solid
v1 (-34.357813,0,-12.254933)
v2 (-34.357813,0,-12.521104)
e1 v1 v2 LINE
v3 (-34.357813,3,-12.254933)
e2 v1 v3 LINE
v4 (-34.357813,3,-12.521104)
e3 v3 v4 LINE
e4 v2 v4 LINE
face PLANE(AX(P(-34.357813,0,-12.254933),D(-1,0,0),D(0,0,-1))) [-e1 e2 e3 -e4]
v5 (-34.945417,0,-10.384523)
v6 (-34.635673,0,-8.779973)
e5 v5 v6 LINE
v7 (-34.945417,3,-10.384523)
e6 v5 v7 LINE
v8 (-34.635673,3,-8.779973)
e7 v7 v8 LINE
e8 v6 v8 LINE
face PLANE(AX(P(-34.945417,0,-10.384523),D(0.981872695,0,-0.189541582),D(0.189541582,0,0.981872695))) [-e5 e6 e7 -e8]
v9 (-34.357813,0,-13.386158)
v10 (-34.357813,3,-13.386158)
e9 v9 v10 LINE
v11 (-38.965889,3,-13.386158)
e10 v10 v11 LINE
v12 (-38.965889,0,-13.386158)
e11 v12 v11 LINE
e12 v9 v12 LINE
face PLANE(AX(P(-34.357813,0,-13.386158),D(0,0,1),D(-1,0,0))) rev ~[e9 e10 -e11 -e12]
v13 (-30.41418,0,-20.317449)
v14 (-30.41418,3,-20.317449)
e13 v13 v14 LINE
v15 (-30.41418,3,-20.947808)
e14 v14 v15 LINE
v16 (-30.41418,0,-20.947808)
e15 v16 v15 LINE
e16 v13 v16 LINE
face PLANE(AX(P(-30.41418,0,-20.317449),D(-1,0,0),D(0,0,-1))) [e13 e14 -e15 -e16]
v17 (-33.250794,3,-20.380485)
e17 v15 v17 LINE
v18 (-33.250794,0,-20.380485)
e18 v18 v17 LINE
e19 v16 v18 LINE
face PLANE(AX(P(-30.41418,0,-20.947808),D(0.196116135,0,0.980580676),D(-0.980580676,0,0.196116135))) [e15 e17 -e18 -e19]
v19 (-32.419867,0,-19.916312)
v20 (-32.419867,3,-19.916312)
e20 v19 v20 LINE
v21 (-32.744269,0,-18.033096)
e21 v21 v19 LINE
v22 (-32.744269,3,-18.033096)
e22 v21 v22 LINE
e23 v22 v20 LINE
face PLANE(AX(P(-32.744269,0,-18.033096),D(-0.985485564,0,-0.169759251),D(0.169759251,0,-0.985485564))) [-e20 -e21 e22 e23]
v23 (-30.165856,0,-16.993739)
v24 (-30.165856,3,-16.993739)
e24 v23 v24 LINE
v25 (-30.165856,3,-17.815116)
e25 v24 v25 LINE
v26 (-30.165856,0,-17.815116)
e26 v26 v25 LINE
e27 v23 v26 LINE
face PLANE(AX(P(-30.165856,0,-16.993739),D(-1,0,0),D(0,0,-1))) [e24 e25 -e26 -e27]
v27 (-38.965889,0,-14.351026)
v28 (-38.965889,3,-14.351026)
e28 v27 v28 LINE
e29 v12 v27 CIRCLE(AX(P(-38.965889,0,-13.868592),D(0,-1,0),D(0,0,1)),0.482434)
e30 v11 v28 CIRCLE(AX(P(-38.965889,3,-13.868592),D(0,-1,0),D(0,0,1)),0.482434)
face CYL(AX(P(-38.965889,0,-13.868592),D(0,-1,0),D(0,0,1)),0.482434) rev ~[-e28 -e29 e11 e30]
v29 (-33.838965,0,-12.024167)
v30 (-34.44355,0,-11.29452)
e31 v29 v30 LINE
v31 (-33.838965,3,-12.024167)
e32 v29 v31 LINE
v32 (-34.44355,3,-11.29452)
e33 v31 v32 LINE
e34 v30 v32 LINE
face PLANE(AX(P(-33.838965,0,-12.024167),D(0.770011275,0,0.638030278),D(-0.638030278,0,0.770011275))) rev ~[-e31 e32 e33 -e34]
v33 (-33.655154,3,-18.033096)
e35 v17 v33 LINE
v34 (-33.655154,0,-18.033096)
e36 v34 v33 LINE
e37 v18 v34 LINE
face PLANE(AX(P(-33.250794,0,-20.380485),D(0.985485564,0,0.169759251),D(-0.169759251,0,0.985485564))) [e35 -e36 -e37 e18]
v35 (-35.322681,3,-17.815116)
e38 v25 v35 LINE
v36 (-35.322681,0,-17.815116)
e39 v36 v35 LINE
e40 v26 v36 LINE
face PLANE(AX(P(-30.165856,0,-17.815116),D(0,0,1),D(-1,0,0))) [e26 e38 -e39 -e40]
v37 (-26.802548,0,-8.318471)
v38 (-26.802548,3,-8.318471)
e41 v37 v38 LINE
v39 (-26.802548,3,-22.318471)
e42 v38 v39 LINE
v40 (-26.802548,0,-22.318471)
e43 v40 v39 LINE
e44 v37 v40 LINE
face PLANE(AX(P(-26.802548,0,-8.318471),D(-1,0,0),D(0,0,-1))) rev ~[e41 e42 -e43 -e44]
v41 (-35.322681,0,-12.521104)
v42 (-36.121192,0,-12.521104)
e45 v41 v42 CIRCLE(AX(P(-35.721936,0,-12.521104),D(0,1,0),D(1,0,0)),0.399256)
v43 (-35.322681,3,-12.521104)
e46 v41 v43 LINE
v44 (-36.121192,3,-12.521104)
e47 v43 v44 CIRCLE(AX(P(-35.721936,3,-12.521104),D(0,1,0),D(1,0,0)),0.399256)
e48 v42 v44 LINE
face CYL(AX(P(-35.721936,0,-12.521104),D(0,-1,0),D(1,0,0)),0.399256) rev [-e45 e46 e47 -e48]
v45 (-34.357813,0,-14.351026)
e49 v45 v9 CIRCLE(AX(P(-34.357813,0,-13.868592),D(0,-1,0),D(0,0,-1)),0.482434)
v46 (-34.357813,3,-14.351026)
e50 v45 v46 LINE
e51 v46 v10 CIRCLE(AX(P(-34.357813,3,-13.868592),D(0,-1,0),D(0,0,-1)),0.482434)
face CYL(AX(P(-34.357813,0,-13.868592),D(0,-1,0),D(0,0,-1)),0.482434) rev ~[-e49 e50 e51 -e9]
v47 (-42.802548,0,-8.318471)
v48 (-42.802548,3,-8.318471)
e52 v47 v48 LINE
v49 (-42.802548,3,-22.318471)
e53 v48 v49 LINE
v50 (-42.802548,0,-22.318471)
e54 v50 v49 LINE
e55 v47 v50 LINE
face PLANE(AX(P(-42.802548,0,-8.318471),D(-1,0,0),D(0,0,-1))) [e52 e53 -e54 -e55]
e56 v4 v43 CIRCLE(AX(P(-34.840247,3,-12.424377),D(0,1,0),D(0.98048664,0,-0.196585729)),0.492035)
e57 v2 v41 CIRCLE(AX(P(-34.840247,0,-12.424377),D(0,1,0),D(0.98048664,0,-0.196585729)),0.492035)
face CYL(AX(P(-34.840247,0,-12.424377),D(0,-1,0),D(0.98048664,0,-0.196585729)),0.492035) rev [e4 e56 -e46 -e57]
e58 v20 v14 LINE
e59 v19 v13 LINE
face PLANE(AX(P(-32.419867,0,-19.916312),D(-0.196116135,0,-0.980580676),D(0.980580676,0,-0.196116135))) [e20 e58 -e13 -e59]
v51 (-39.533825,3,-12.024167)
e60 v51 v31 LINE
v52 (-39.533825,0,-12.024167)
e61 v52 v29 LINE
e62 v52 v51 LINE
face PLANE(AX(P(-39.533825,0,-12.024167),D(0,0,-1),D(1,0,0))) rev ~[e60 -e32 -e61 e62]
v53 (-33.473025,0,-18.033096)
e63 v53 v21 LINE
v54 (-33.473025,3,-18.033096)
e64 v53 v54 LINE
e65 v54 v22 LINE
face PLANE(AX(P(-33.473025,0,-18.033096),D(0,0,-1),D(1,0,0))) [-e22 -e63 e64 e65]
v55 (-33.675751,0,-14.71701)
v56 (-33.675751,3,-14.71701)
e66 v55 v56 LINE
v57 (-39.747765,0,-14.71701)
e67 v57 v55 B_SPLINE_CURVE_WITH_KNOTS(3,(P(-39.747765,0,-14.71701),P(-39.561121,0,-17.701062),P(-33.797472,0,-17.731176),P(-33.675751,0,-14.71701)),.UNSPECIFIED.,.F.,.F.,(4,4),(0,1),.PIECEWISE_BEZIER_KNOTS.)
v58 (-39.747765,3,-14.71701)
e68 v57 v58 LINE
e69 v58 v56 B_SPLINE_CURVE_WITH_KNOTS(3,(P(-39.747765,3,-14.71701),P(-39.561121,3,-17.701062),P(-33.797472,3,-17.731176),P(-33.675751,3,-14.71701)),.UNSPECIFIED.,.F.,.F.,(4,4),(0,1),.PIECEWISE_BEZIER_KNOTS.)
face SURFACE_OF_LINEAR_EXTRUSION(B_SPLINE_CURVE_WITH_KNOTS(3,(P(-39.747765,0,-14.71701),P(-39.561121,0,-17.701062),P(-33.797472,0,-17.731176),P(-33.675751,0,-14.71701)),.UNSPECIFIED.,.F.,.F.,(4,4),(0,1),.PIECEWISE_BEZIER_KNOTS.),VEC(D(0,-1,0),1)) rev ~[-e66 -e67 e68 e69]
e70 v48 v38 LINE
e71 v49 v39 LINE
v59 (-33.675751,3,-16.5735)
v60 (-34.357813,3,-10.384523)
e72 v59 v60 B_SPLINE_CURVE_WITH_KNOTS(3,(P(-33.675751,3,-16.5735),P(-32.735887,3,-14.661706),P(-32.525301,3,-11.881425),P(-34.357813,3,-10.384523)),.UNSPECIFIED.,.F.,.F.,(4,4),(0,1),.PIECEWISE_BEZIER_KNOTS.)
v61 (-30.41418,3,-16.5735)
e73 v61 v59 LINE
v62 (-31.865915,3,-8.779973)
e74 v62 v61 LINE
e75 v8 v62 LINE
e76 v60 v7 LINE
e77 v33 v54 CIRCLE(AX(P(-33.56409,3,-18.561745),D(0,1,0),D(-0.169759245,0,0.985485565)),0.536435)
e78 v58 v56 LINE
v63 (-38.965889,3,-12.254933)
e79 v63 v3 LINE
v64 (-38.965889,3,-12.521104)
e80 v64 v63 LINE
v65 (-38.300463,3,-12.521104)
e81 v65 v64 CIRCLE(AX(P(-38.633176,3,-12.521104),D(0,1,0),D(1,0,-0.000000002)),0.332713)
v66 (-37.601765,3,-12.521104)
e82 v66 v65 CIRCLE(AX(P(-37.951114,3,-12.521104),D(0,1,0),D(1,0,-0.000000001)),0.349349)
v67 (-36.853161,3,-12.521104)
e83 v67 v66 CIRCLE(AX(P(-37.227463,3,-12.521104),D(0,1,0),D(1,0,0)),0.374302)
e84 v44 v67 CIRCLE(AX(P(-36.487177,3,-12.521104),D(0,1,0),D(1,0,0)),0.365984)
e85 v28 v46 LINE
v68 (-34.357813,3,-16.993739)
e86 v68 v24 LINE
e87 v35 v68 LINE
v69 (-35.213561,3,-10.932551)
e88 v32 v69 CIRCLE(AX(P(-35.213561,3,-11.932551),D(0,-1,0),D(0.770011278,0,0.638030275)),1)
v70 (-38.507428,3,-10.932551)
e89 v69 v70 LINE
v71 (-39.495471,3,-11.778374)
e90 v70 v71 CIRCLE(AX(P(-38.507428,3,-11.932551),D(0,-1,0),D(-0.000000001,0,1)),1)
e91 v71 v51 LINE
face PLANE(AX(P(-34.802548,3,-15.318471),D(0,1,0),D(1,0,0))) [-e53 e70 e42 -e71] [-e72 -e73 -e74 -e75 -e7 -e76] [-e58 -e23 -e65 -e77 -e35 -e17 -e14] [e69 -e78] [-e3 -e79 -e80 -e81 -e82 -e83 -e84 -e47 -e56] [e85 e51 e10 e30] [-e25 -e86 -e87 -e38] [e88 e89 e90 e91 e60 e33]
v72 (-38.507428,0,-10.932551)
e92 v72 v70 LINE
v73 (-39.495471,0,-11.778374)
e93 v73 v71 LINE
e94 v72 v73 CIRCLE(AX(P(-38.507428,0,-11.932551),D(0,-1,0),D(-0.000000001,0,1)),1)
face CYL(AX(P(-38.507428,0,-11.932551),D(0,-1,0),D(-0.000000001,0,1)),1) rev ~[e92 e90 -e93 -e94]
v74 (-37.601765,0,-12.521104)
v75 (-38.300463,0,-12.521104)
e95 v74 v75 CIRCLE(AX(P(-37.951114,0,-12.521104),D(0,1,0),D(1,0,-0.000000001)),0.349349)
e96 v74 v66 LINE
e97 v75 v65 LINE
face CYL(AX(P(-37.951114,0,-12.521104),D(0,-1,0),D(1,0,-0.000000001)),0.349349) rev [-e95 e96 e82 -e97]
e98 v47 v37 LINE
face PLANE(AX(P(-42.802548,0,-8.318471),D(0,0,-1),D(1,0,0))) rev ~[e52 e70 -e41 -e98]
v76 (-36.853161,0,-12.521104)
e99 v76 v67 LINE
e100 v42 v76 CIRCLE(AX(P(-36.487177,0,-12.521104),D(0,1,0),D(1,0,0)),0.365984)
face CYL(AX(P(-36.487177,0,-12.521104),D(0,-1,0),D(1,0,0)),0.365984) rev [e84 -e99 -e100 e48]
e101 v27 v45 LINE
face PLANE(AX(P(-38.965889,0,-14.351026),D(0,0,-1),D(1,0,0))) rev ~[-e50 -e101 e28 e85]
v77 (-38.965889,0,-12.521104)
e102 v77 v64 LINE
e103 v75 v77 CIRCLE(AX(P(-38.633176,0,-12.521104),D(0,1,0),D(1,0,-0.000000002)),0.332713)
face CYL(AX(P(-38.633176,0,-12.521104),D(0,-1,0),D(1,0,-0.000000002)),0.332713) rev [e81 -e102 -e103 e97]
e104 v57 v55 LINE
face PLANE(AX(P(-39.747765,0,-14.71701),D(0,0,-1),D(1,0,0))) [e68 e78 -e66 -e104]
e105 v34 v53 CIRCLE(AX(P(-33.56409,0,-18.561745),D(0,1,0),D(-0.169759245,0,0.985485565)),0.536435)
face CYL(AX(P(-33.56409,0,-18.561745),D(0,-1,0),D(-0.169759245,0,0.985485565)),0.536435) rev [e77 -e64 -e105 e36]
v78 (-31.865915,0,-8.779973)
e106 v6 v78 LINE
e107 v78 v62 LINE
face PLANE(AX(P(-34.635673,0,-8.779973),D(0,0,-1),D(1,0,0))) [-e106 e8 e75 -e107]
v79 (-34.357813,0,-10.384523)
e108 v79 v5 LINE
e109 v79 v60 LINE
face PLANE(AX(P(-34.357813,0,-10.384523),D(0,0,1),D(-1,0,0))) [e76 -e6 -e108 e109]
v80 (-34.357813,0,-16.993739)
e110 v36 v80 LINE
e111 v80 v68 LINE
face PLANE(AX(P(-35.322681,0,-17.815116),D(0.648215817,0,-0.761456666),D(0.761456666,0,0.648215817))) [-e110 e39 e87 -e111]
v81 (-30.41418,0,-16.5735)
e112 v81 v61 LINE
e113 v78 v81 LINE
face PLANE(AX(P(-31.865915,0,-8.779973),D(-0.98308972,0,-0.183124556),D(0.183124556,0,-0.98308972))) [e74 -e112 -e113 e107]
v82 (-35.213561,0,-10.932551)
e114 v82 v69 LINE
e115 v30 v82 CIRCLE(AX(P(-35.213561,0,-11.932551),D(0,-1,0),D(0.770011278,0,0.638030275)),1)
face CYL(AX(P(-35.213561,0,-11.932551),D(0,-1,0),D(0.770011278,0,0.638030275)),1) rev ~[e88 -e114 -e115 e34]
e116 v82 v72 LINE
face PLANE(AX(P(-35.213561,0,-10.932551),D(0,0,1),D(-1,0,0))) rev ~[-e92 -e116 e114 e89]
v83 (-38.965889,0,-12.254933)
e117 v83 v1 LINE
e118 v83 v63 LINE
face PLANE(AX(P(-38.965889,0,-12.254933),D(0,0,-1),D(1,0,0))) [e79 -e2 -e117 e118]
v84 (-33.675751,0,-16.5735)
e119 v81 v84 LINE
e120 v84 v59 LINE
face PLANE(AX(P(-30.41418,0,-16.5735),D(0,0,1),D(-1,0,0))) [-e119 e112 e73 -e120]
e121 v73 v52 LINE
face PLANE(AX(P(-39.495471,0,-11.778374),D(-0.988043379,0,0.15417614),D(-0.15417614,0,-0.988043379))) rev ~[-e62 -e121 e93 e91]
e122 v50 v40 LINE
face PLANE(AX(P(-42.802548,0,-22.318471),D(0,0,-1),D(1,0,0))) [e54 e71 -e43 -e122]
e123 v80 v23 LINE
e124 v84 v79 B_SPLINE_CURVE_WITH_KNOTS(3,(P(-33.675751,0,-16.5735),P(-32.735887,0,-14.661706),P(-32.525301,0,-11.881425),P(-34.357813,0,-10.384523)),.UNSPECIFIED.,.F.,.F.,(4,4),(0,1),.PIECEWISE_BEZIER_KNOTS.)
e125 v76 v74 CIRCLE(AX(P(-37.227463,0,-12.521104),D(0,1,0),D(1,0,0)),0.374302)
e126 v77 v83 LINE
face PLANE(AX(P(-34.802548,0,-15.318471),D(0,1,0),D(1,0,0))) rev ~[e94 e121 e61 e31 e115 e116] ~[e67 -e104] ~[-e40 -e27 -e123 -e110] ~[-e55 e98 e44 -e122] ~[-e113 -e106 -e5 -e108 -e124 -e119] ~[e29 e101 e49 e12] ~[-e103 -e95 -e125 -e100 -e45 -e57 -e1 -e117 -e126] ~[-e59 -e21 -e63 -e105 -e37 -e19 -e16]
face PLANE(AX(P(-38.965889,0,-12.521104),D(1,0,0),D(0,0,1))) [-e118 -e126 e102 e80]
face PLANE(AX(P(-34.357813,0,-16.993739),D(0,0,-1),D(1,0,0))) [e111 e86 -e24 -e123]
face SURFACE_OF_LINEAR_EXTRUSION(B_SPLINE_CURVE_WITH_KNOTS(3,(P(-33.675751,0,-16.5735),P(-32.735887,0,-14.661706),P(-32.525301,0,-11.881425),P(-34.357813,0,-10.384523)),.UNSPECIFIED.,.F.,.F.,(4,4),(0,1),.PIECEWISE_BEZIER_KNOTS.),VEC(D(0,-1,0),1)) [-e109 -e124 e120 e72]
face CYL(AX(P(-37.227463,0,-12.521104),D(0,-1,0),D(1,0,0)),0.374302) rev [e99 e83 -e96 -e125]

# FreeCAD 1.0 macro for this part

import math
import FreeCAD as App
import Part
import Sketcher
from FreeCAD import Vector
Q = App.Units.Quantity

doc = App.newDocument("Part")
body = doc.addObject("PartDesign::Body", "Body")

# Sketch on XZ plane
sketch1 = doc.addObject("Sketcher::SketchObject", "Sketch")
body.addObject(sketch1)
sketch1.AttachmentSupport = (doc.XZ_Plane, [""])
sketch1.MapMode = "FlatFace"
sketch1.addGeometry([
    Part.LineSegment(Vector(-42.802548, -22.318471, 0), Vector(-42.802548, -8.318471, 0)),  # 0
    Part.LineSegment(Vector(-42.802548, -8.318471, 0), Vector(-26.802548, -8.318471, 0)),  # 1
    Part.LineSegment(Vector(-26.802548, -8.318471, 0), Vector(-26.802548, -22.318471, 0)),  # 2
    Part.LineSegment(Vector(-26.802548, -22.318471, 0), Vector(-42.802548, -22.318471, 0)),  # 3
    Part.LineSegment(Vector(-39.495471, -11.778374, 0), Vector(-39.533825, -12.024167, 0)),  # 4
    Part.LineSegment(Vector(-39.533825, -12.024167, 0), Vector(-33.838965, -12.024167, 0)),  # 5
    Part.LineSegment(Vector(-33.838965, -12.024167, 0), Vector(-34.44355, -11.29452, 0)),  # 6
    Part.ArcOfCircle(Part.Circle(Vector(-35.213561, -11.932551, 0), Vector(0, 0, 1), 1), math.radians(39.645098), math.radians(90)),  # 7
    Part.LineSegment(Vector(-35.213561, -10.932551, 0), Vector(-38.507428, -10.932551, 0)),  # 8
    Part.ArcOfCircle(Part.Circle(Vector(-38.507428, -11.932551, 0), Vector(0, 0, 1), 1), math.radians(90), math.radians(171.130982)),  # 9
    Part.LineSegment(Vector(-38.965889, -12.254933, 0), Vector(-38.965889, -12.521104, 0)),  # 10
    Part.ArcOfCircle(Part.Circle(Vector(-38.633176, -12.521104, 0), Vector(0, 0, 1), 0.332713), math.radians(-180), math.radians(0)),  # 11
    Part.ArcOfCircle(Part.Circle(Vector(-37.951114, -12.521104, 0), Vector(0, 0, 1), 0.349349), math.radians(180), math.radians(360)),  # 12
    Part.ArcOfCircle(Part.Circle(Vector(-37.227463, -12.521104, 0), Vector(0, 0, 1), 0.374302), math.radians(180), math.radians(360)),  # 13
    Part.ArcOfCircle(Part.Circle(Vector(-36.487177, -12.521104, 0), Vector(0, 0, 1), 0.365984), math.radians(180), math.radians(360)),  # 14
    Part.ArcOfCircle(Part.Circle(Vector(-35.721936, -12.521104, 0), Vector(0, 0, 1), 0.399256), math.radians(180), math.radians(360)),  # 15
    Part.ArcOfCircle(Part.Circle(Vector(-34.840247, -12.424377, 0), Vector(0, 0, 1), 0.492035), math.radians(-168.662628), math.radians(-11.337372)),  # 16
    Part.LineSegment(Vector(-34.357813, -12.521104, 0), Vector(-34.357813, -12.254933, 0)),  # 17
    Part.LineSegment(Vector(-34.357813, -12.254933, 0), Vector(-38.965889, -12.254933, 0)),  # 18
    Part.ArcOfCircle(Part.Circle(Vector(-38.965889, -13.868592, 0), Vector(0, 0, 1), 0.482434), math.radians(90), math.radians(270)),  # 19
    Part.LineSegment(Vector(-38.965889, -14.351026, 0), Vector(-34.357813, -14.351026, 0)),  # 20
    Part.ArcOfCircle(Part.Circle(Vector(-34.357813, -13.868592, 0), Vector(0, 0, 1), 0.482434), math.radians(-90), math.radians(90)),  # 21
    Part.LineSegment(Vector(-34.357813, -13.386158, 0), Vector(-38.965889, -13.386158, 0)),  # 22
    Part.LineSegment(Vector(-34.635673, -8.779973, 0), Vector(-34.945417, -10.384523, 0)),  # 23
    Part.LineSegment(Vector(-34.945417, -10.384523, 0), Vector(-34.357813, -10.384523, 0)),  # 24
    Part.BSplineCurve([Vector(-33.675751, -16.5735, 0), Vector(-32.735887, -14.661706, 0), Vector(-32.525301, -11.881425, 0), Vector(-34.357813, -10.384523, 0)], [4, 4], [0, 1], False, 3, [1, 1, 1, 1], False),  # 25
    Part.LineSegment(Vector(-33.675751, -16.5735, 0), Vector(-30.41418, -16.5735, 0)),  # 26
    Part.LineSegment(Vector(-30.41418, -16.5735, 0), Vector(-31.865915, -8.779973, 0)),  # 27
    Part.LineSegment(Vector(-31.865915, -8.779973, 0), Vector(-34.635673, -8.779973, 0)),  # 28
    Part.LineSegment(Vector(-33.675751, -14.71701, 0), Vector(-39.747765, -14.71701, 0)),  # 29
    Part.BSplineCurve([Vector(-39.747765, -14.71701, 0), Vector(-39.561121, -17.701062, 0), Vector(-33.797472, -17.731176, 0), Vector(-33.675751, -14.71701, 0)], [4, 4], [0, 1], False, 3, [1, 1, 1, 1], False),  # 30
    Part.LineSegment(Vector(-30.165856, -16.993739, 0), Vector(-34.357813, -16.993739, 0)),  # 31
    Part.LineSegment(Vector(-34.357813, -16.993739, 0), Vector(-35.322681, -17.815116, 0)),  # 32
    Part.LineSegment(Vector(-35.322681, -17.815116, 0), Vector(-30.165856, -17.815116, 0)),  # 33
    Part.LineSegment(Vector(-30.165856, -17.815116, 0), Vector(-30.165856, -16.993739, 0)),  # 34
    Part.LineSegment(Vector(-32.744269, -18.033096, 0), Vector(-33.473025, -18.033096, 0)),  # 35
    Part.ArcOfCircle(Part.Circle(Vector(-33.56409, -18.561745, 0), Vector(0, 0, 1), 0.536435), math.radians(80.226179), math.radians(99.773821)),  # 36
    Part.LineSegment(Vector(-33.655154, -18.033096, 0), Vector(-33.250794, -20.380485, 0)),  # 37
    Part.LineSegment(Vector(-33.250794, -20.380485, 0), Vector(-30.41418, -20.947808, 0)),  # 38
    Part.LineSegment(Vector(-30.41418, -20.947808, 0), Vector(-30.41418, -20.317449, 0)),  # 39
    Part.LineSegment(Vector(-30.41418, -20.317449, 0), Vector(-32.419867, -19.916312, 0)),  # 40
    Part.LineSegment(Vector(-32.419867, -19.916312, 0), Vector(-32.744269, -18.033096, 0)),  # 41
], False)
sketch1.addConstraint([
    Sketcher.Constraint("Block", 25),
    Sketcher.Constraint("Block", 30),
    Sketcher.Constraint("Coincident", 0, 2, 1, 1),
    Sketcher.Constraint("Coincident", 1, 2, 2, 1),
    Sketcher.Constraint("Coincident", 2, 2, 3, 1),
    Sketcher.Constraint("Coincident", 3, 2, 0, 1),
    Sketcher.Constraint("Coincident", 4, 2, 5, 1),
    Sketcher.Constraint("Coincident", 5, 2, 6, 1),
    Sketcher.Constraint("Tangent", 6, 2, 7, 1),
    Sketcher.Constraint("Tangent", 7, 2, 8, 1),
    Sketcher.Constraint("Tangent", 8, 2, 9, 1),
    Sketcher.Constraint("Tangent", 9, 2, 4, 1),
    Sketcher.Constraint("Tangent", 10, 2, 11, 1),
    Sketcher.Constraint("Tangent", 11, 2, 12, 1),
    Sketcher.Constraint("Tangent", 12, 2, 13, 1),
    Sketcher.Constraint("Tangent", 13, 2, 14, 1),
    Sketcher.Constraint("Tangent", 14, 2, 15, 1),
    Sketcher.Constraint("Coincident", 15, 2, 16, 1),
    Sketcher.Constraint("Coincident", 16, 2, 17, 1),
    Sketcher.Constraint("Coincident", 17, 2, 18, 1),
    Sketcher.Constraint("Coincident", 18, 2, 10, 1),
    Sketcher.Constraint("Tangent", 19, 2, 20, 1),
    Sketcher.Constraint("Tangent", 20, 2, 21, 1),
    Sketcher.Constraint("Tangent", 21, 2, 22, 1),
    Sketcher.Constraint("Tangent", 22, 2, 19, 1),
    Sketcher.Constraint("Coincident", 23, 2, 24, 1),
    Sketcher.Constraint("Coincident", 24, 2, 25, 2),
    Sketcher.Constraint("Coincident", 25, 1, 26, 1),
    Sketcher.Constraint("Coincident", 26, 2, 27, 1),
    Sketcher.Constraint("Coincident", 27, 2, 28, 1),
    Sketcher.Constraint("Coincident", 28, 2, 23, 1),
    Sketcher.Constraint("Coincident", 29, 1, 30, 2),
    Sketcher.Constraint("Coincident", 30, 1, 29, 2),
    Sketcher.Constraint("Coincident", 31, 2, 32, 1),
    Sketcher.Constraint("Coincident", 32, 2, 33, 1),
    Sketcher.Constraint("Coincident", 33, 2, 34, 1),
    Sketcher.Constraint("Coincident", 34, 2, 31, 1),
    Sketcher.Constraint("Coincident", 35, 2, 36, 1),
    Sketcher.Constraint("Coincident", 36, 2, 37, 1),
    Sketcher.Constraint("Coincident", 37, 2, 38, 1),
    Sketcher.Constraint("Coincident", 38, 2, 39, 1),
    Sketcher.Constraint("Coincident", 39, 2, 40, 1),
    Sketcher.Constraint("Coincident", 40, 2, 41, 1),
    Sketcher.Constraint("Coincident", 41, 2, 35, 1),
    Sketcher.Constraint("Vertical", 0),
    Sketcher.Constraint("Horizontal", 1),
    Sketcher.Constraint("Vertical", 2),
    Sketcher.Constraint("Horizontal", 3),
    Sketcher.Constraint("Horizontal", 5),
    Sketcher.Constraint("Horizontal", 8),
    Sketcher.Constraint("Vertical", 10),
    Sketcher.Constraint("Vertical", 17),
    Sketcher.Constraint("Horizontal", 18),
    Sketcher.Constraint("Horizontal", 20),
    Sketcher.Constraint("Horizontal", 22),
    Sketcher.Constraint("Horizontal", 24),
    Sketcher.Constraint("Horizontal", 26),
    Sketcher.Constraint("Horizontal", 28),
    Sketcher.Constraint("Horizontal", 31),
    Sketcher.Constraint("Horizontal", 33),
    Sketcher.Constraint("Vertical", 34),
    Sketcher.Constraint("Horizontal", 35),
    Sketcher.Constraint("Vertical", 39),
    Sketcher.Constraint("Equal", 7, 9),
    Sketcher.Constraint("Parallel", 38, 40),
    Sketcher.Constraint("Parallel", 37, 41),
    Sketcher.Constraint("Horizontal", 11, 3, 12, 3),
    Sketcher.Constraint("Horizontal", 12, 3, 13, 3),
    Sketcher.Constraint("Horizontal", 13, 3, 14, 3),
    Sketcher.Constraint("Horizontal", 14, 3, 15, 3),
    Sketcher.Constraint("Horizontal", 14, 2, 15, 2),
    Sketcher.Constraint("Horizontal", 15, 2, 16, 2),
    Sketcher.Constraint("Horizontal", 35, 2, 36, 2),
    Sketcher.Constraint("Vertical", 19, 3, 10, 2),
    Sketcher.Constraint("Vertical", 21, 3, 16, 2),
    Sketcher.Constraint("Vertical", 21, 2, 24, 2),
    Sketcher.Constraint("Vertical", 24, 2, 31, 2),
    Sketcher.Constraint("Vertical", 15, 2, 32, 2),
    Sketcher.Constraint("Vertical", 26, 2, 38, 2),
    Sketcher.Constraint("Radius", 7, Q("1 mm")),
    Sketcher.Constraint("DistanceX", 1, 1, 1, 2, Q("16 mm")),
    Sketcher.Constraint("DistanceY", 0, 1, 0, 2, Q("14 mm")),
    Sketcher.Constraint("Radius", 12, Q("0.349349 mm")),
    Sketcher.Constraint("Radius", 11, Q("0.332713 mm")),
    Sketcher.Constraint("Radius", 13, Q("0.374302 mm")),
    Sketcher.Constraint("Radius", 14, Q("0.365984 mm")),
    Sketcher.Constraint("Radius", 15, Q("0.399256 mm")),
    Sketcher.Constraint("Radius", 16, Q("0.492035 mm")),
    Sketcher.Constraint("Radius", 19, Q("0.482434 mm")),
    Sketcher.Constraint("Radius", 36, Q("0.536435 mm")),
    Sketcher.Constraint("DistanceX", 5, 1, 5, 2, Q("5.69486 mm")),
    Sketcher.Constraint("DistanceX", 26, 1, 26, 2, Q("3.261571 mm")),
    Sketcher.Constraint("DistanceX", 28, 2, 28, 1, Q("2.769758 mm")),
    Sketcher.Constraint("DistanceY", 10, 2, 10, 1, Q("0.26617 mm")),
    Sketcher.Constraint("DistanceY", 39, 1, 39, 2, Q("0.630359 mm")),
    Sketcher.Constraint("DistanceX", 16, 3, 1, 2, Q("8.037699 mm")),
    Sketcher.Constraint("DistanceX", 41, 2, 40, 2, Q("0.324402 mm")),
    Sketcher.Constraint("Distance", 6, Q("0.94758 mm")),
    Sketcher.Constraint("Distance", 37, Q("2.381962 mm")),
    Sketcher.Constraint("Distance", 38, Q("2.892791 mm")),
    Sketcher.Constraint("DistanceX", 8, 2, 8, 1, Q("3.293867 mm")),
    Sketcher.Constraint("DistanceX", 18, 2, 18, 1, Q("4.608077 mm")),
    Sketcher.Constraint("DistanceX", 24, 1, 24, 2, Q("0.587605 mm")),
    Sketcher.Constraint("DistanceX", 31, 2, 31, 1, Q("4.191956 mm")),
    Sketcher.Constraint("DistanceX", 35, 2, 35, 1, Q("0.728756 mm")),
    Sketcher.Constraint("DistanceY", 34, 1, 34, 2, Q("0.821377 mm")),
    Sketcher.Constraint("DistanceX", 7, 3, -1, 1, Q("35.213561 mm")),
    Sketcher.Constraint("DistanceY", 7, 3, -1, 1, Q("11.932551 mm")),
    Sketcher.Constraint("DistanceY", 19, 3, -1, 1, Q("13.868592 mm")),
    Sketcher.Constraint("DistanceX", 36, 3, -1, 1, Q("33.56409 mm")),
    Sketcher.Constraint("DistanceY", 0, 2, -1, 1, Q("8.318471 mm")),
    Sketcher.Constraint("DistanceX", 6, 2, -1, 1, Q("34.44355 mm")),
    Sketcher.Constraint("DistanceY", 31, 2, -1, 1, Q("16.993739 mm")),
    Sketcher.Constraint("DistanceY", 38, 2, -1, 1, Q("20.947808 mm")),
    Sketcher.Constraint("DistanceY", 40, 2, -1, 1, Q("19.916312 mm")),
    Sketcher.Constraint("DistanceY", 19, 3, 11, 3, Q("1.347488 mm")),
    Sketcher.Constraint("DistanceY", 24, 2, 27, 2, Q("1.60455 mm")),
    Sketcher.Constraint("DistanceX", 5, 2, 27, 2, Q("1.97305 mm")),
])
pad1 = doc.addObject("PartDesign::Pad", "Pad")
body.addObject(pad1)
pad1.Profile = sketch1
pad1.Length = 3
pad1.Reversed = True

doc.recompute()
